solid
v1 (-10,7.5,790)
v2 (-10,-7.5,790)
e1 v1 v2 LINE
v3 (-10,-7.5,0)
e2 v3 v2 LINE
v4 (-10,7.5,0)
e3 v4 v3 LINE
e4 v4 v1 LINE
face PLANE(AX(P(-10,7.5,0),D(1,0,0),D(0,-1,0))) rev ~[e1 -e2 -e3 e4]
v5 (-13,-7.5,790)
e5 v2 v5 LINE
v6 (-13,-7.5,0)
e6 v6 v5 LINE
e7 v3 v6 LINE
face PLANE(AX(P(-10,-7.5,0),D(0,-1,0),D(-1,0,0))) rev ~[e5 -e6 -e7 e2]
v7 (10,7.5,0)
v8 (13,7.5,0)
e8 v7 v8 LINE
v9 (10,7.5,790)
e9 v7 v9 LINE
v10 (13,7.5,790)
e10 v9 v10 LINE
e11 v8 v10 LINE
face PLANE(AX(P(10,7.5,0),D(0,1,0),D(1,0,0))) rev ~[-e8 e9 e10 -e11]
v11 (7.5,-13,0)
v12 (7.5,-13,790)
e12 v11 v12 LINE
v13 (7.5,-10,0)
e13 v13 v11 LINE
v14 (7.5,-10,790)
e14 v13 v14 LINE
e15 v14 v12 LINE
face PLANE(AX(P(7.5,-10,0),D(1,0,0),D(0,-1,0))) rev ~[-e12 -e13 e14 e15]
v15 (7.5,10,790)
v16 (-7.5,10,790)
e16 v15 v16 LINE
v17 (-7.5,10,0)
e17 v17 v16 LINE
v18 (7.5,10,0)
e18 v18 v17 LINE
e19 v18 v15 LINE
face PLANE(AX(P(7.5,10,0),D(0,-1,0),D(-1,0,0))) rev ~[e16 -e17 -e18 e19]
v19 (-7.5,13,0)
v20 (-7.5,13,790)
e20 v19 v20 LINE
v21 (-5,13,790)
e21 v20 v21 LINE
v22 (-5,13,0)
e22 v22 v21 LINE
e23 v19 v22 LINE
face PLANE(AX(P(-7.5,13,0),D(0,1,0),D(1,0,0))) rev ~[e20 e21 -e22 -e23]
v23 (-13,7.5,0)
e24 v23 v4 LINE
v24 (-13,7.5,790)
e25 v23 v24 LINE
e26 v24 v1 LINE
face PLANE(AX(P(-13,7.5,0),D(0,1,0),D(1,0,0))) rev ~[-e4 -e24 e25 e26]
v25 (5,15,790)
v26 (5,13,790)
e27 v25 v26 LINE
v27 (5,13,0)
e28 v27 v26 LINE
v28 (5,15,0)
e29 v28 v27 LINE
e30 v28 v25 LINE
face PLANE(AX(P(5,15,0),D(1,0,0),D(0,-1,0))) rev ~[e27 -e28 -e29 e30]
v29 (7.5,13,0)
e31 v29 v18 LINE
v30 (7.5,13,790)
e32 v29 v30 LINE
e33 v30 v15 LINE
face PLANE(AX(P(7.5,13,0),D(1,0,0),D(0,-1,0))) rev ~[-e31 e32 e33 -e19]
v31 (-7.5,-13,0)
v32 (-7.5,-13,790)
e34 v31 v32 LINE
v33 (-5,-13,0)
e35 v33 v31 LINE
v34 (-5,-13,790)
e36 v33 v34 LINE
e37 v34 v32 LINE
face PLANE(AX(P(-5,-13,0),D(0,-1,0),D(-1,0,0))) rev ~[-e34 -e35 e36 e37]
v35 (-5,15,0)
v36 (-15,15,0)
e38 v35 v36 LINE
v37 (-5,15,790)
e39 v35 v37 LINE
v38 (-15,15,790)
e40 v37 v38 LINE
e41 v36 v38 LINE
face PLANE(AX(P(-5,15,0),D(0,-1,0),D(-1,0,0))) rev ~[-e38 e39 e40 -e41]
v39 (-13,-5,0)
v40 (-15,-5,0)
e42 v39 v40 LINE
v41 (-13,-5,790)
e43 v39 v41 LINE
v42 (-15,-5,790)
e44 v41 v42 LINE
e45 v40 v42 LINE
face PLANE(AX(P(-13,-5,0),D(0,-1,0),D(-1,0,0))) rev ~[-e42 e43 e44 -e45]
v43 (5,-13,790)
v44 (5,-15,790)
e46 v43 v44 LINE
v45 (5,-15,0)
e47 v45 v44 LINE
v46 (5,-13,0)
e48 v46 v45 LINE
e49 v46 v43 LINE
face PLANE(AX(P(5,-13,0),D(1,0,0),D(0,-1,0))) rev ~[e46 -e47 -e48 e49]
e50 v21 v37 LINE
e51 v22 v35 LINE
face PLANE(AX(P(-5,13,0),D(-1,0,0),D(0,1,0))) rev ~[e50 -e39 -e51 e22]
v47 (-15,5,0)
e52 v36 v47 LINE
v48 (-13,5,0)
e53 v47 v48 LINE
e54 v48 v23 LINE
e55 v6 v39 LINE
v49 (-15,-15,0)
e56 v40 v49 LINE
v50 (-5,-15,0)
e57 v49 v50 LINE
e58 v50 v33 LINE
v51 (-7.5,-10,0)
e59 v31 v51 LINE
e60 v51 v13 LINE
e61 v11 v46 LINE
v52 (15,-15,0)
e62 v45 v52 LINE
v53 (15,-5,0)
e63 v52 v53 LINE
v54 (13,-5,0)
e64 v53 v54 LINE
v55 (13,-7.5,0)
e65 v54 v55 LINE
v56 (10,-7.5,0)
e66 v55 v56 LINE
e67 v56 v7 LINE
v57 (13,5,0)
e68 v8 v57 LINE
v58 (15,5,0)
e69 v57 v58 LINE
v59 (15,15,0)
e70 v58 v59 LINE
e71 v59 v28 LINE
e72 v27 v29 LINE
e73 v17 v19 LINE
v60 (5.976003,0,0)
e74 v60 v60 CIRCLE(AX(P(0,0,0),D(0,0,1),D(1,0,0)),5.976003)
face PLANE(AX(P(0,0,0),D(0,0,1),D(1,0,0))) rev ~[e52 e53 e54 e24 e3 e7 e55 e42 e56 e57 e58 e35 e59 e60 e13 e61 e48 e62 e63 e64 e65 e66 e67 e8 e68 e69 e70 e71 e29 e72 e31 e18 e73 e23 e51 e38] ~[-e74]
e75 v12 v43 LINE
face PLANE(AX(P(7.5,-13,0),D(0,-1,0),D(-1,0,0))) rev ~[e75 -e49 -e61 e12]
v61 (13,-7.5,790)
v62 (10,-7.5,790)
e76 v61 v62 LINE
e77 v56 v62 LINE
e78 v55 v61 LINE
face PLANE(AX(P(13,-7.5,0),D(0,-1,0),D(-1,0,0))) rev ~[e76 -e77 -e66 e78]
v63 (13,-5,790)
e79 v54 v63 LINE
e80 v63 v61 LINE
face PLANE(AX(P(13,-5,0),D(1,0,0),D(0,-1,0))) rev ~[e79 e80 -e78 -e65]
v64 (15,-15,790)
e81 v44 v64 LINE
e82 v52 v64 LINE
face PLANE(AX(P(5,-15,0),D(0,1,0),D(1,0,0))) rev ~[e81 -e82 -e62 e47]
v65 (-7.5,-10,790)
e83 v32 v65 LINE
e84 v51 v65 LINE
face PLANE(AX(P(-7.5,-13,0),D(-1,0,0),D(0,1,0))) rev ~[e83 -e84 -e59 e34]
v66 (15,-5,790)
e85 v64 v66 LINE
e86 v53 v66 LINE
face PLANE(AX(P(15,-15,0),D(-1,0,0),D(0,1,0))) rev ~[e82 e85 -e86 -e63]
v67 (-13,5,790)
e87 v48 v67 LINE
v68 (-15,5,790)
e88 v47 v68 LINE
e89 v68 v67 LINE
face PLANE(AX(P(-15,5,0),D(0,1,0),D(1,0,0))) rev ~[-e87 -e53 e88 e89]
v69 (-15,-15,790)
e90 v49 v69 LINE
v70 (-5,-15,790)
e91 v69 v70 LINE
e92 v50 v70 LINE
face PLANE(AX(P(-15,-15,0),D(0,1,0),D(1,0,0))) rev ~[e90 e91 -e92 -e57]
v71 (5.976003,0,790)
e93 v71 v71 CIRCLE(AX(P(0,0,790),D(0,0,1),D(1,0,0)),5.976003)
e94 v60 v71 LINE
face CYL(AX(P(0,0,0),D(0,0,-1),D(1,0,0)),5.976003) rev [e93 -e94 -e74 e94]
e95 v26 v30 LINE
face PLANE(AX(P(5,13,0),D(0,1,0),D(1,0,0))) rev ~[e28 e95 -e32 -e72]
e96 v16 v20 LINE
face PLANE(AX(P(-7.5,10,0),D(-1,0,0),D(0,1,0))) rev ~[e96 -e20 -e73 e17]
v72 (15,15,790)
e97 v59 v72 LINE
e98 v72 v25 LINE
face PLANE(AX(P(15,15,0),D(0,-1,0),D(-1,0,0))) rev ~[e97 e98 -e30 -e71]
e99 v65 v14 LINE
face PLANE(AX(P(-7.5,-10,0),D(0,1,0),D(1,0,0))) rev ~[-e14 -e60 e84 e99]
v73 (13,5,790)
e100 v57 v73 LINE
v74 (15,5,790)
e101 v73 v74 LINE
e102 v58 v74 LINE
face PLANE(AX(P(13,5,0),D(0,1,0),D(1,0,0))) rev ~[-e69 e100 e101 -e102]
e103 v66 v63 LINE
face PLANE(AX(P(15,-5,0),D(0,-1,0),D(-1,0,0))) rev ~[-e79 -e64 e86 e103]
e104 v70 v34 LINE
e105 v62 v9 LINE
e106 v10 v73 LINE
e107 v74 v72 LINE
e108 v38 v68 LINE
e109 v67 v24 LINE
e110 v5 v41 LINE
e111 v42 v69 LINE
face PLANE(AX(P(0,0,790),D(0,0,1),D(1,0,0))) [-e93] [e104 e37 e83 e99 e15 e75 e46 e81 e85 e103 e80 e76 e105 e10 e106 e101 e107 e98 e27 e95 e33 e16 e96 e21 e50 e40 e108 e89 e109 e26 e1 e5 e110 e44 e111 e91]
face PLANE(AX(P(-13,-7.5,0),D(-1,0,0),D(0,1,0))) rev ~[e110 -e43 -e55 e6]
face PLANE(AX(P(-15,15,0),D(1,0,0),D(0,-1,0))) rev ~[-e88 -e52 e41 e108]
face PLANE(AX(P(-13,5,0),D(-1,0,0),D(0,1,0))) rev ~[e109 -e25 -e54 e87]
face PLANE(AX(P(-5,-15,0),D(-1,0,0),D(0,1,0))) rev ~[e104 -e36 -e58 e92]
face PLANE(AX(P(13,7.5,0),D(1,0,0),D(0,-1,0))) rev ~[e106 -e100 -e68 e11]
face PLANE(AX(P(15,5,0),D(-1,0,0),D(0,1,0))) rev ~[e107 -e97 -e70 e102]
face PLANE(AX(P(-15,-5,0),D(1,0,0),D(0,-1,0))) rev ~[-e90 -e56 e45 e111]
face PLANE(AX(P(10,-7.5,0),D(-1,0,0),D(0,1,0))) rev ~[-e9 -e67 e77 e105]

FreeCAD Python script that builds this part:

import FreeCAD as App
import Part
import Sketcher

doc = App.newDocument("Part")
body = doc.addObject("PartDesign::Body", "Body")

# Sketch on XY plane
sketch1 = doc.addObject("Sketcher::SketchObject", "Sketch")
body.addObject(sketch1)
sketch1.AttachmentSupport = (doc.XY_Plane, [""])
sketch1.MapMode = "FlatFace"
sketch1.addGeometry([
    Part.LineSegment(App.Vector(15, 15, 0), App.Vector(5, 15, 0)),  # 0
    Part.LineSegment(App.Vector(5, 15, 0), App.Vector(5, 13, 0)),  # 1
    Part.LineSegment(App.Vector(5, 13, 0), App.Vector(7.5, 13, 0)),  # 2
    Part.LineSegment(App.Vector(7.5, 13, 0), App.Vector(7.5, 10, 0)),  # 3
    Part.LineSegment(App.Vector(7.5, 10, 0), App.Vector(-7.5, 10, 0)),  # 4
    Part.LineSegment(App.Vector(-7.5, 10, 0), App.Vector(-7.5, 13, 0)),  # 5
    Part.LineSegment(App.Vector(-7.5, 13, 0), App.Vector(-5, 13, 0)),  # 6
    Part.LineSegment(App.Vector(-5, 13, 0), App.Vector(-5, 15, 0)),  # 7
    Part.LineSegment(App.Vector(-5, 15, 0), App.Vector(-15, 15, 0)),  # 8
    Part.LineSegment(App.Vector(-15, 15, 0), App.Vector(-15, 5, 0)),  # 9
    Part.LineSegment(App.Vector(-15, 5, 0), App.Vector(-13, 5, 0)),  # 10
    Part.LineSegment(App.Vector(-13, 5, 0), App.Vector(-13, 7.5, 0)),  # 11
    Part.LineSegment(App.Vector(-13, 7.5, 0), App.Vector(-10, 7.5, 0)),  # 12
    Part.LineSegment(App.Vector(-10, 7.5, 0), App.Vector(-10, -7.5, 0)),  # 13
    Part.LineSegment(App.Vector(-10, -7.5, 0), App.Vector(-13, -7.5, 0)),  # 14
    Part.LineSegment(App.Vector(-13, -7.5, 0), App.Vector(-13, -5, 0)),  # 15
    Part.LineSegment(App.Vector(-13, -5, 0), App.Vector(-15, -5, 0)),  # 16
    Part.LineSegment(App.Vector(-15, -5, 0), App.Vector(-15, -15, 0)),  # 17
    Part.LineSegment(App.Vector(-15, -15, 0), App.Vector(-5, -15, 0)),  # 18
    Part.LineSegment(App.Vector(-5, -15, 0), App.Vector(-5, -13, 0)),  # 19
    Part.LineSegment(App.Vector(-5, -13, 0), App.Vector(-7.5, -13, 0)),  # 20
    Part.LineSegment(App.Vector(-7.5, -13, 0), App.Vector(-7.5, -10, 0)),  # 21
    Part.LineSegment(App.Vector(-7.5, -10, 0), App.Vector(7.5, -10, 0)),  # 22
    Part.LineSegment(App.Vector(7.5, -10, 0), App.Vector(7.5, -13, 0)),  # 23
    Part.LineSegment(App.Vector(7.5, -13, 0), App.Vector(5, -13, 0)),  # 24
    Part.LineSegment(App.Vector(5, -13, 0), App.Vector(5, -15, 0)),  # 25
    Part.LineSegment(App.Vector(5, -15, 0), App.Vector(15, -15, 0)),  # 26
    Part.LineSegment(App.Vector(15, -15, 0), App.Vector(15, -5, 0)),  # 27
    Part.LineSegment(App.Vector(15, -5, 0), App.Vector(13, -5, 0)),  # 28
    Part.LineSegment(App.Vector(13, -5, 0), App.Vector(13, -7.5, 0)),  # 29
    Part.LineSegment(App.Vector(13, -7.5, 0), App.Vector(10, -7.5, 0)),  # 30
    Part.LineSegment(App.Vector(10, -7.5, 0), App.Vector(10, 7.5, 0)),  # 31
    Part.LineSegment(App.Vector(10, 7.5, 0), App.Vector(13, 7.5, 0)),  # 32
    Part.LineSegment(App.Vector(13, 7.5, 0), App.Vector(13, 5, 0)),  # 33
    Part.LineSegment(App.Vector(13, 5, 0), App.Vector(15, 5, 0)),  # 34
    Part.LineSegment(App.Vector(15, 5, 0), App.Vector(15, 15, 0)),  # 35
    Part.Circle(App.Vector(0, 0, 0), App.Vector(0, 0, 1), 6),  # 36
], False)
sketch1.addConstraint([
    Sketcher.Constraint("Coincident", 0, 2, 1, 1),
    Sketcher.Constraint("Coincident", 1, 2, 2, 1),
    Sketcher.Constraint("Coincident", 2, 2, 3, 1),
    Sketcher.Constraint("Coincident", 3, 2, 4, 1),
    Sketcher.Constraint("Coincident", 4, 2, 5, 1),
    Sketcher.Constraint("Coincident", 5, 2, 6, 1),
    Sketcher.Constraint("Coincident", 6, 2, 7, 1),
    Sketcher.Constraint("Coincident", 7, 2, 8, 1),
    Sketcher.Constraint("Coincident", 8, 2, 9, 1),
    Sketcher.Constraint("Coincident", 9, 2, 10, 1),
    Sketcher.Constraint("Coincident", 10, 2, 11, 1),
    Sketcher.Constraint("Coincident", 11, 2, 12, 1),
    Sketcher.Constraint("Coincident", 12, 2, 13, 1),
    Sketcher.Constraint("Coincident", 13, 2, 14, 1),
    Sketcher.Constraint("Coincident", 14, 2, 15, 1),
    Sketcher.Constraint("Coincident", 15, 2, 16, 1),
    Sketcher.Constraint("Coincident", 16, 2, 17, 1),
    Sketcher.Constraint("Coincident", 17, 2, 18, 1),
    Sketcher.Constraint("Coincident", 18, 2, 19, 1),
    Sketcher.Constraint("Coincident", 19, 2, 20, 1),
    Sketcher.Constraint("Coincident", 20, 2, 21, 1),
    Sketcher.Constraint("Coincident", 21, 2, 22, 1),
    Sketcher.Constraint("Coincident", 22, 2, 23, 1),
    Sketcher.Constraint("Coincident", 23, 2, 24, 1),
    Sketcher.Constraint("Coincident", 24, 2, 25, 1),
    Sketcher.Constraint("Coincident", 25, 2, 26, 1),
    Sketcher.Constraint("Coincident", 26, 2, 27, 1),
    Sketcher.Constraint("Coincident", 27, 2, 28, 1),
    Sketcher.Constraint("Coincident", 28, 2, 29, 1),
    Sketcher.Constraint("Coincident", 29, 2, 30, 1),
    Sketcher.Constraint("Coincident", 30, 2, 31, 1),
    Sketcher.Constraint("Coincident", 31, 2, 32, 1),
    Sketcher.Constraint("Coincident", 32, 2, 33, 1),
    Sketcher.Constraint("Coincident", 33, 2, 34, 1),
    Sketcher.Constraint("Coincident", 34, 2, 35, 1),
    Sketcher.Constraint("Coincident", 35, 2, 0, 1),
    Sketcher.Constraint("Horizontal", 0),
    Sketcher.Constraint("Vertical", 1),
    Sketcher.Constraint("Horizontal", 2),
    Sketcher.Constraint("Vertical", 3),
    Sketcher.Constraint("Horizontal", 4),
    Sketcher.Constraint("Vertical", 5),
    Sketcher.Constraint("Horizontal", 6),
    Sketcher.Constraint("Vertical", 7),
    Sketcher.Constraint("Horizontal", 8),
    Sketcher.Constraint("Vertical", 9),
    Sketcher.Constraint("Horizontal", 10),
    Sketcher.Constraint("Vertical", 11),
    Sketcher.Constraint("Horizontal", 12),
    Sketcher.Constraint("Vertical", 13),
    Sketcher.Constraint("Horizontal", 14),
    Sketcher.Constraint("Vertical", 15),
    Sketcher.Constraint("Horizontal", 16),
    Sketcher.Constraint("Vertical", 17),
    Sketcher.Constraint("Horizontal", 18),
    Sketcher.Constraint("Vertical", 19),
    Sketcher.Constraint("Horizontal", 20),
    Sketcher.Constraint("Vertical", 21),
    Sketcher.Constraint("Horizontal", 22),
    Sketcher.Constraint("Vertical", 23),
    Sketcher.Constraint("Horizontal", 24),
    Sketcher.Constraint("Vertical", 25),
    Sketcher.Constraint("Horizontal", 26),
    Sketcher.Constraint("Vertical", 27),
    Sketcher.Constraint("Horizontal", 28),
    Sketcher.Constraint("Vertical", 29),
    Sketcher.Constraint("Horizontal", 30),
    Sketcher.Constraint("Vertical", 31),
    Sketcher.Constraint("Horizontal", 32),
    Sketcher.Constraint("Vertical", 33),
    Sketcher.Constraint("Horizontal", 34),
    Sketcher.Constraint("Vertical", 35),
    Sketcher.Constraint("Coincident", 36, 3, -1, 1),
    Sketcher.Constraint("Symmetric", 0, 2, 18, 2, -1, 1),
    Sketcher.Constraint("Symmetric", 2, 2, 20, 2, -1, 1),
    Sketcher.Constraint("Symmetric", 4, 2, 22, 2, -1, 1),
    Sketcher.Constraint("Symmetric", 6, 2, 24, 2, -1, 1),
    Sketcher.Constraint("Symmetric", 8, 2, 26, 2, -1, 1),
    Sketcher.Constraint("Symmetric", 10, 2, 28, 2, -1, 1),
    Sketcher.Constraint("Symmetric", 12, 2, 30, 2, -1, 1),
    Sketcher.Constraint("Symmetric", 14, 2, 32, 2, -1, 1),
    Sketcher.Constraint("Symmetric", 16, 2, 34, 2, -1, 1),
    Sketcher.Constraint("Symmetric", 2, 2, 5, 2, -2),
    Sketcher.Constraint("Symmetric", 0, 2, 7, 2, -2),
    Sketcher.Constraint("Symmetric", 16, 2, 27, 2, -2),
    Sketcher.Constraint("Symmetric", 14, 2, 29, 2, -2),
    Sketcher.Constraint("Equal", 34, 1),
    Sketcher.Constraint("Equal", 32, 3),
    Sketcher.Constraint("Equal", 26, 9),
    Sketcher.Constraint("Equal", 24, 11),
    Sketcher.Constraint("Equal", 22, 13),
    Sketcher.Constraint("DistanceX", 0, 2, 0, 1, 10.0),
    Sketcher.Constraint("DistanceX", 4, 2, 4, 1, 15.0),
    Sketcher.Constraint("DistanceX", 10, 1, 10, 2, 2.0),
    Sketcher.Constraint("DistanceX", 12, 1, 12, 2, 3.0),
    Sketcher.Constraint("DistanceX", 2, 1, 2, 2, 2.5),
    Sketcher.Constraint("Diameter", 36, 11.952006),
])
pad1 = doc.addObject("PartDesign::Pad", "Pad")
body.addObject(pad1)
pad1.Profile = sketch1
pad1.Length = 790

doc.recompute()
